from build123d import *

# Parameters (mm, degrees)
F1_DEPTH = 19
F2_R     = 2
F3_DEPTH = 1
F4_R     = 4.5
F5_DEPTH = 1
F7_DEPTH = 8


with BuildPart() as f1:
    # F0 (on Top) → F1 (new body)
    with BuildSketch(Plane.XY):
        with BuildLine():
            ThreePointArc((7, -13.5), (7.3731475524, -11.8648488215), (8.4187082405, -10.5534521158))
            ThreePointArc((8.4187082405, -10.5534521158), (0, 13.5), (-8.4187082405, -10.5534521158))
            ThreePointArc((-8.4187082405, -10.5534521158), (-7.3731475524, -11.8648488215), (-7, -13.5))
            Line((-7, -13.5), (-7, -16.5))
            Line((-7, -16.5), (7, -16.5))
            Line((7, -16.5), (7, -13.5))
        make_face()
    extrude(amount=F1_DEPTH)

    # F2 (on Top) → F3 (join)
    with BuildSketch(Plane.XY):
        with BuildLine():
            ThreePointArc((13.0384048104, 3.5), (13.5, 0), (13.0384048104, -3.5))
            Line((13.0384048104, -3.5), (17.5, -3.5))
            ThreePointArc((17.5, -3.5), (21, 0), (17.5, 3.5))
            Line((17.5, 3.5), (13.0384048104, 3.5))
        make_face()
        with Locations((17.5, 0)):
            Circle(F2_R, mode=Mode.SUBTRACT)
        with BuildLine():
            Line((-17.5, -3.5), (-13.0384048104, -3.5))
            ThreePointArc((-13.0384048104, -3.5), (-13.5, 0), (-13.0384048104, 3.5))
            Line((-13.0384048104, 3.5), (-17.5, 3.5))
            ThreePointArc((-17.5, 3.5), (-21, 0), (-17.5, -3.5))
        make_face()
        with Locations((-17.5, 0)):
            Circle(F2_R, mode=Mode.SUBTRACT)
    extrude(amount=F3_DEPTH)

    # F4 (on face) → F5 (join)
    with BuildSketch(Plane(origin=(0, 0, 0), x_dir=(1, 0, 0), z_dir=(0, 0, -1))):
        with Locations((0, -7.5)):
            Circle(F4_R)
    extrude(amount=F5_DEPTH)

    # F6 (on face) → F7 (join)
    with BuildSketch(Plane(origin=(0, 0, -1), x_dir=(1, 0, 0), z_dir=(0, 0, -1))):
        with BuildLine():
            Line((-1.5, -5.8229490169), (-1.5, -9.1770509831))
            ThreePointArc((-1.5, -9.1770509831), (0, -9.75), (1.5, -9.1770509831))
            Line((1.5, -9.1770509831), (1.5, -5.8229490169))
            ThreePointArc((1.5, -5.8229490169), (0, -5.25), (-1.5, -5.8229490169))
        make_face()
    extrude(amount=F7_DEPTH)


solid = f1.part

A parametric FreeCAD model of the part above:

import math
import FreeCAD as App
import Part
import Sketcher

V = App.Vector

doc = App.newDocument("Part")
body = doc.addObject("PartDesign::Body", "Body")

# Sketch on XY plane
sketch1 = doc.addObject("Sketcher::SketchObject", "Sketch")
body.addObject(sketch1)
sketch1.AttachmentSupport = (doc.XY_Plane, [""])
sketch1.MapMode = "FlatFace"
sketch1.addGeometry(Part.ArcOfCircle(Part.Circle(V(10.769231, -13.5, 0), V(0, 0, 1), 3.769231), math.radians(128.580092), math.radians(180)), False)
sketch1.addGeometry(Part.ArcOfCircle(Part.Circle(V(0, 0, 0), V(0, 0, 1), 13.5), math.radians(-51.419908), math.radians(231.419908)), False)
sketch1.addGeometry(Part.ArcOfCircle(Part.Circle(V(-10.769231, -13.5, 0), V(0, 0, 1), 3.769231), math.radians(0), math.radians(51.419908)), False)
sketch1.addGeometry(Part.LineSegment(V(-7, -13.5, 0), V(-7, -16.5, 0)), False)
sketch1.addGeometry(Part.LineSegment(V(-7, -16.5, 0), V(7, -16.5, 0)), False)
sketch1.addGeometry(Part.LineSegment(V(7, -16.5, 0), V(7, -13.5, 0)), False)
sketch1.addConstraint(Sketcher.Constraint("Tangent", 0, 1, 1, 1))
sketch1.addConstraint(Sketcher.Constraint("Tangent", 1, 2, 2, 2))
sketch1.addConstraint(Sketcher.Constraint("Tangent", 2, 1, 3, 1))
sketch1.addConstraint(Sketcher.Constraint("Coincident", 3, 2, 4, 1))
sketch1.addConstraint(Sketcher.Constraint("Coincident", 4, 2, 5, 1))
sketch1.addConstraint(Sketcher.Constraint("Tangent", 5, 2, 0, 2))
sketch1.addConstraint(Sketcher.Constraint("Vertical", 3))
sketch1.addConstraint(Sketcher.Constraint("Horizontal", 4))
sketch1.addConstraint(Sketcher.Constraint("Vertical", 5))
sketch1.addConstraint(Sketcher.Constraint("Coincident", 1, 3, -1, 1))
sketch1.addConstraint(Sketcher.Constraint("Equal", 0, 2))
sketch1.addConstraint(Sketcher.Constraint("Horizontal", 0, 3, 2, 3))
sketch1.addConstraint(Sketcher.Constraint("Radius", 1, 13.5))
sketch1.addConstraint(Sketcher.Constraint("DistanceX", 4, 1, 4, 2, 14.0))
sketch1.addConstraint(Sketcher.Constraint("DistanceY", 3, 2, 3, 1, 3.0))
sketch1.addConstraint(Sketcher.Constraint("DistanceY", 0, 3, -1, 1, 13.5))
pad1 = doc.addObject("PartDesign::Pad", "Pad")
body.addObject(pad1)
pad1.Profile = sketch1
pad1.Length = 19

# Sketch on XY plane
sketch2 = doc.addObject("Sketcher::SketchObject", "Sketch001")
body.addObject(sketch2)
sketch2.AttachmentSupport = (doc.XY_Plane, [""])
sketch2.MapMode = "FlatFace"
sketch2.addGeometry(Part.ArcOfCircle(Part.Circle(V(0, 0, 0), V(0, 0, 1), 13.5), math.radians(-15.026114), math.radians(15.026114)), False)
sketch2.addGeometry(Part.LineSegment(V(13.038405, -3.5, 0), V(17.5, -3.5, 0)), False)
sketch2.addGeometry(Part.ArcOfCircle(Part.Circle(V(17.5, 0, 0), V(0, 0, 1), 3.5), math.radians(-90), math.radians(90)), False)
sketch2.addGeometry(Part.LineSegment(V(17.5, 3.5, 0), V(13.038405, 3.5, 0)), False)
sketch2.addGeometry(Part.Circle(V(17.5, 0, 0), V(0, 0, 1), 2), False)
sketch2.addGeometry(Part.LineSegment(V(-17.5, -3.5, 0), V(-13.038405, -3.5, 0)), False)
sketch2.addGeometry(Part.ArcOfCircle(Part.Circle(V(0, 0, 0), V(0, 0, 1), 13.5), math.radians(164.973886), math.radians(195.026114)), False)
sketch2.addGeometry(Part.LineSegment(V(-13.038405, 3.5, 0), V(-17.5, 3.5, 0)), False)
sketch2.addGeometry(Part.ArcOfCircle(Part.Circle(V(-17.5, 0, 0), V(0, 0, 1), 3.5), math.radians(90), math.radians(270)), False)
sketch2.addGeometry(Part.Circle(V(-17.5, 0, 0), V(0, 0, 1), 2), False)
sketch2.addConstraint(Sketcher.Constraint("Coincident", 0, 1, 1, 1))
sketch2.addConstraint(Sketcher.Constraint("Tangent", 1, 2, 2, 1))
sketch2.addConstraint(Sketcher.Constraint("Tangent", 2, 2, 3, 1))
sketch2.addConstraint(Sketcher.Constraint("Coincident", 3, 2, 0, 2))
sketch2.addConstraint(Sketcher.Constraint("Coincident", 5, 2, 6, 2))
sketch2.addConstraint(Sketcher.Constraint("Coincident", 6, 1, 7, 1))
sketch2.addConstraint(Sketcher.Constraint("Tangent", 7, 2, 8, 1))
sketch2.addConstraint(Sketcher.Constraint("Tangent", 8, 2, 5, 1))
sketch2.addConstraint(Sketcher.Constraint("Horizontal", 1))
sketch2.addConstraint(Sketcher.Constraint("Horizontal", 3))
sketch2.addConstraint(Sketcher.Constraint("Horizontal", 5))
sketch2.addConstraint(Sketcher.Constraint("Horizontal", 7))
sketch2.addConstraint(Sketcher.Constraint("Coincident", 0, 3, -1, 1))
sketch2.addConstraint(Sketcher.Constraint("Coincident", 6, 3, -1, 1))
sketch2.addConstraint(Sketcher.Constraint("Coincident", 4, 3, 2, 3))
sketch2.addConstraint(Sketcher.Constraint("Coincident", 9, 3, 8, 3))
sketch2.addConstraint(Sketcher.Constraint("Equal", 0, 6))
sketch2.addConstraint(Sketcher.Constraint("Equal", 2, 8))
sketch2.addConstraint(Sketcher.Constraint("Equal", 4, 9))
sketch2.addConstraint(Sketcher.Constraint("Symmetric", 2, 3, 8, 3, -1, 1))
sketch2.addConstraint(Sketcher.Constraint("PointOnObject", 2, 3, -1))
sketch2.addConstraint(Sketcher.Constraint("Diameter", 4, 4.0))
sketch2.addConstraint(Sketcher.Constraint("Radius", 0, 13.5))
sketch2.addConstraint(Sketcher.Constraint("Radius", 2, 3.5))
sketch2.addConstraint(Sketcher.Constraint("DistanceX", 8, 3, 2, 3, 35.0))
pad2 = doc.addObject("PartDesign::Pad", "Pad001")
body.addObject(pad2)
pad2.Profile = sketch2
pad2.Length = 1

# Sketch on XY plane
sketch3 = doc.addObject("Sketcher::SketchObject", "Sketch002")
body.addObject(sketch3)
sketch3.AttachmentSupport = (doc.XY_Plane, [""])
sketch3.MapMode = "FlatFace"
sketch3.addGeometry(Part.Circle(V(0, 7.5, 0), V(0, 0, 1), 4.5), False)
sketch3.addConstraint(Sketcher.Constraint("PointOnObject", 0, 3, -2))
sketch3.addConstraint(Sketcher.Constraint("Diameter", 0, 9.0))
sketch3.addConstraint(Sketcher.Constraint("DistanceY", -1, 1, 0, 3, 7.5))
pad3 = doc.addObject("PartDesign::Pad", "Pad002")
body.addObject(pad3)
pad3.Profile = sketch3
pad3.Length = 1
pad3.Reversed = True

# Sketch on XY plane
sketch4 = doc.addObject("Sketcher::SketchObject", "Sketch003")
body.addObject(sketch4)
sketch4.AttachmentSupport = (doc.XY_Plane, [""])
sketch4.MapMode = "FlatFace"
sketch4.AttachmentOffset = App.Placement(V(0, 0, -1), App.Rotation())
sketch4.addGeometry(Part.LineSegment(V(-1.5, 5.822949, 0), V(-1.5, 9.177051, 0)), False)
sketch4.addGeometry(Part.ArcOfCircle(Part.Circle(V(0, 7.5, 0), V(0, 0, 1), 2.25), math.radians(48.189685), math.radians(131.810315)), False)
sketch4.addGeometry(Part.LineSegment(V(1.5, 9.177051, 0), V(1.5, 5.822949, 0)), False)
sketch4.addGeometry(Part.ArcOfCircle(Part.Circle(V(0, 7.5, 0), V(0, 0, 1), 2.25), math.radians(-131.810315), math.radians(-48.189685)), False)
sketch4.addConstraint(Sketcher.Constraint("Coincident", 0, 2, 1, 2))
sketch4.addConstraint(Sketcher.Constraint("Coincident", 1, 1, 2, 1))
sketch4.addConstraint(Sketcher.Constraint("Coincident", 2, 2, 3, 2))
sketch4.addConstraint(Sketcher.Constraint("Coincident", 3, 1, 0, 1))
sketch4.addConstraint(Sketcher.Constraint("Vertical", 0))
sketch4.addConstraint(Sketcher.Constraint("Vertical", 2))
sketch4.addConstraint(Sketcher.Constraint("Coincident", 3, 3, 1, 3))
sketch4.addConstraint(Sketcher.Constraint("Equal", 1, 3))
sketch4.addConstraint(Sketcher.Constraint("Symmetric", 0, 2, 1, 1, -2))
sketch4.addConstraint(Sketcher.Constraint("Radius", 1, 2.25))
sketch4.addConstraint(Sketcher.Constraint("DistanceX", 0, 2, 1, 1, 3.0))
sketch4.addConstraint(Sketcher.Constraint("DistanceY", -1, 1, 1, 3, 7.5))
pad4 = doc.addObject("PartDesign::Pad", "Pad003")
body.addObject(pad4)
pad4.Profile = sketch4
pad4.Length = 8
pad4.Reversed = True

doc.recompute()
